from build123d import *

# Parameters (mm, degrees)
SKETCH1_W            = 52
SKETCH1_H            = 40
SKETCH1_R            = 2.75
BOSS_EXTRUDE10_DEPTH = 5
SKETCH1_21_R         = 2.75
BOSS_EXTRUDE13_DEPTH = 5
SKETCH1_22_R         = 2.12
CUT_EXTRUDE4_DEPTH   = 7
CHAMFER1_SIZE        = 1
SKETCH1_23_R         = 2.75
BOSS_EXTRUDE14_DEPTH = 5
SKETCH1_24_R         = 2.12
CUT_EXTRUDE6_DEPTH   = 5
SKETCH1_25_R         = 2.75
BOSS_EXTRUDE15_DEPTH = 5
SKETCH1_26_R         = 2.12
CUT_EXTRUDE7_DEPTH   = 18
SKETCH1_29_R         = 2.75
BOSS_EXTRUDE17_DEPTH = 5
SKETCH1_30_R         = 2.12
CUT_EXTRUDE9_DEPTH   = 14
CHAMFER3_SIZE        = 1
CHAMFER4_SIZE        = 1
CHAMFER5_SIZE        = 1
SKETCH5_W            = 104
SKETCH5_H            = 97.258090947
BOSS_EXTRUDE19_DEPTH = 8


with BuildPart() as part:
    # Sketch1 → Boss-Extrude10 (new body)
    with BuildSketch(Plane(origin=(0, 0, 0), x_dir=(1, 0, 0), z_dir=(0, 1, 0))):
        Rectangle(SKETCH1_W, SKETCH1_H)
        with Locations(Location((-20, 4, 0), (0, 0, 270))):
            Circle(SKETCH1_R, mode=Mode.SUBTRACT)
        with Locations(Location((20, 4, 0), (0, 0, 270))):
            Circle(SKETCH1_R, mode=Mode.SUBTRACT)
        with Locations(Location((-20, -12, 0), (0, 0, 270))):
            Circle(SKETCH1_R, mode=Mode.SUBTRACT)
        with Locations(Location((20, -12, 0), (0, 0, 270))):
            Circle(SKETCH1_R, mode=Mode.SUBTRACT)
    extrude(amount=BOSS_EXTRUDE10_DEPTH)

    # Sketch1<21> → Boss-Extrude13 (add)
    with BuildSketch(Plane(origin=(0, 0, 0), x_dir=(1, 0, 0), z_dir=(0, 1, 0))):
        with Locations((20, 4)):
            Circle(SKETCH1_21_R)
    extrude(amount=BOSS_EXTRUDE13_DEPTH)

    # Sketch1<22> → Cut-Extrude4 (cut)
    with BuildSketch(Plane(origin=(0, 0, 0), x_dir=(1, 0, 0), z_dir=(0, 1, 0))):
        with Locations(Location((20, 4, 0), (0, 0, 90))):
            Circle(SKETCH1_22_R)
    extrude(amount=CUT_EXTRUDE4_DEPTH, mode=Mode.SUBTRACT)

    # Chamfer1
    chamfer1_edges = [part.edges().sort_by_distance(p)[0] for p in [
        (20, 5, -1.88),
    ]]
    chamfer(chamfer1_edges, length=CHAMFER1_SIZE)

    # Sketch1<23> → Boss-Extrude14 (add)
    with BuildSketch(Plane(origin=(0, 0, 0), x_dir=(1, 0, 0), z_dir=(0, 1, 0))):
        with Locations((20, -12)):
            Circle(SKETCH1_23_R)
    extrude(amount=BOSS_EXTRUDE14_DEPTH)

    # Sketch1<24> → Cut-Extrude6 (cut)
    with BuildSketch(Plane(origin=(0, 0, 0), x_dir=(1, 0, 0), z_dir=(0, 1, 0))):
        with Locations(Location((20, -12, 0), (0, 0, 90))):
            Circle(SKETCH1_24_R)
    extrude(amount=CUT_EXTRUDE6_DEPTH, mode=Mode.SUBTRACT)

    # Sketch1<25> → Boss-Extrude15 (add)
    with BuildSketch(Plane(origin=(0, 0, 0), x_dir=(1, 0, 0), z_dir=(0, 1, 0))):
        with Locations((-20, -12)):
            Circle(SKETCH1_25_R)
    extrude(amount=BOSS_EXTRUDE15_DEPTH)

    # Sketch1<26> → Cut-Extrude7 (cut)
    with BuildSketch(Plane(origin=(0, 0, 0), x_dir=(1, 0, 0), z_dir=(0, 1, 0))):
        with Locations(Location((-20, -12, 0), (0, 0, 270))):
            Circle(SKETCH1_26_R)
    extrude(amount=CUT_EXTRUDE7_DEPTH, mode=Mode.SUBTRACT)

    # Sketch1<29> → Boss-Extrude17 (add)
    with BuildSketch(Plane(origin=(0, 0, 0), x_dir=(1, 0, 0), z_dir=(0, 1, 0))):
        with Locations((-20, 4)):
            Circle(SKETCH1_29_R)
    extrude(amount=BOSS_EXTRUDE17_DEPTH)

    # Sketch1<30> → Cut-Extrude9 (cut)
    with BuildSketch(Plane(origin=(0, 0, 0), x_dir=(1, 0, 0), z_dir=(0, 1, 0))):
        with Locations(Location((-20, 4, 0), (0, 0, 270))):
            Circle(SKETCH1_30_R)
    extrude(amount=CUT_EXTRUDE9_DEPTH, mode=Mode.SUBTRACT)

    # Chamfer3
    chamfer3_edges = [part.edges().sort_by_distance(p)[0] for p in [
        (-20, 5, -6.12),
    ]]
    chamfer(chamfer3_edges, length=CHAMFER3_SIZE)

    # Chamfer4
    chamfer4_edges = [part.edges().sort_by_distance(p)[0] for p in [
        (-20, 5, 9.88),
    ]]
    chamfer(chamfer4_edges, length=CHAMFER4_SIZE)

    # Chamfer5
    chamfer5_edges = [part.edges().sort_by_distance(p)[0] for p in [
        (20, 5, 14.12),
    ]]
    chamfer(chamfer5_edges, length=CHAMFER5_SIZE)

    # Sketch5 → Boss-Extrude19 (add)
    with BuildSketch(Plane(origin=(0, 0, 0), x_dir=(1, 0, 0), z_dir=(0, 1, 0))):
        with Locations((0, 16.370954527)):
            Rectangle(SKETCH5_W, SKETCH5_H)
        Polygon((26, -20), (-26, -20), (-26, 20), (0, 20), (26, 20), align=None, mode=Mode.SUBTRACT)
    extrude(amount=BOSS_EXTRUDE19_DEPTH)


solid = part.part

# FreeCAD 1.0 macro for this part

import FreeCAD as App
import Part
import Sketcher

V = App.Vector


def edges_at(feature, points):
    """Names of the edges that pass closest to the given points."""
    edges = feature.Shape.Edges
    near = lambda p: min(range(len(edges)), key=lambda i: edges[i].distToShape(Part.Vertex(*p))[0])
    return sorted({f"Edge{near(p) + 1}" for p in points})

doc = App.newDocument("Part")
body = doc.addObject("PartDesign::Body", "Body")

sketch1 = body.newObject("Sketcher::SketchObject", "Sketch")
sketch1.AttachmentSupport = (doc.getObject("XZ_Plane"), [""])
sketch1.MapMode = "FlatFace"
sketch1.addGeometry([
    Part.LineSegment(V(-26, -20, 0), V(-26, 20, 0)),
    Part.LineSegment(V(-26, 20, 0), V(26, 20, 0)),
    Part.LineSegment(V(26, 20, 0), V(26, -20, 0)),
    Part.LineSegment(V(26, -20, 0), V(-26, -20, 0)),
    Part.Circle(V(-20, 12, 0), V(0, 0, 1), 2.75),
    Part.Circle(V(20, 12, 0), V(0, 0, 1), 2.75),
    Part.Circle(V(-20, -4, 0), V(0, 0, 1), 2.75),
    Part.Circle(V(20, -4, 0), V(0, 0, 1), 2.75),
], False)
sketch1.addConstraint([
    Sketcher.Constraint("Coincident", 0, 2, 1, 1),
    Sketcher.Constraint("Coincident", 1, 2, 2, 1),
    Sketcher.Constraint("Coincident", 2, 2, 3, 1),
    Sketcher.Constraint("Coincident", 3, 2, 0, 1),
    Sketcher.Constraint("Vertical", 0),
    Sketcher.Constraint("Horizontal", 1),
    Sketcher.Constraint("Vertical", 2),
    Sketcher.Constraint("Horizontal", 3),
    Sketcher.Constraint("Equal", 4, 5),
    Sketcher.Constraint("Equal", 5, 6),
    Sketcher.Constraint("Equal", 6, 7),
    Sketcher.Constraint("Symmetric", 0, 2, 2, 2, -1, 1),
    Sketcher.Constraint("Symmetric", 4, 3, 5, 3, -2),
    Sketcher.Constraint("Symmetric", 6, 3, 7, 3, -2),
    Sketcher.Constraint("Vertical", 4, 3, 6, 3),
    Sketcher.Constraint("Diameter", 4, 5.5),
    Sketcher.Constraint("DistanceX", 1, 1, 1, 2, 52.0),
    Sketcher.Constraint("DistanceY", 0, 1, 0, 2, 40.0),
    Sketcher.Constraint("DistanceX", 4, 3, -1, 1, 20.0),
    Sketcher.Constraint("DistanceY", -1, 1, 4, 3, 12.0),
    Sketcher.Constraint("DistanceY", 6, 3, -1, 1, 4.0),
])
pad1 = body.newObject("PartDesign::Pad", "Pad")
pad1.Profile = sketch1
pad1.Length = 5
pad1.Reversed = True

sketch2 = body.newObject("Sketcher::SketchObject", "Sketch001")
sketch2.AttachmentSupport = (doc.getObject("XZ_Plane"), [""])
sketch2.MapMode = "FlatFace"
sketch2.addGeometry(Part.Circle(V(20, -4, 0), V(0, 0, 1), 2.75), False)
sketch2.addConstraint([
    Sketcher.Constraint("Diameter", 0, 5.5),
    Sketcher.Constraint("DistanceX", -1, 1, 0, 3, 20.0),
    Sketcher.Constraint("DistanceY", 0, 3, -1, 1, 4.0),
])
pad2 = body.newObject("PartDesign::Pad", "Pad001")
pad2.Profile = sketch2
pad2.Length = 5
pad2.Reversed = True

sketch3 = body.newObject("Sketcher::SketchObject", "Sketch002")
sketch3.AttachmentSupport = (doc.getObject("XZ_Plane"), [""])
sketch3.MapMode = "FlatFace"
sketch3.addGeometry(Part.Circle(V(20, -4, 0), V(0, 0, 1), 2.12), False)
sketch3.addConstraint([
    Sketcher.Constraint("Diameter", 0, 4.24),
    Sketcher.Constraint("DistanceX", -1, 1, 0, 3, 20.0),
    Sketcher.Constraint("DistanceY", 0, 3, -1, 1, 4.0),
])
pocket1 = body.newObject("PartDesign::Pocket", "Pocket")
pocket1.Profile = sketch3
pocket1.Length = 7
doc.recompute()

chamfer = body.newObject("PartDesign::Chamfer", "Chamfer")
chamfer.Base = (pocket1, edges_at(pocket1, [(20, 5, -1.88)]))
chamfer.Size = 1

sketch4 = body.newObject("Sketcher::SketchObject", "Sketch003")
sketch4.AttachmentSupport = (doc.getObject("XZ_Plane"), [""])
sketch4.MapMode = "FlatFace"
sketch4.addGeometry(Part.Circle(V(20, 12, 0), V(0, 0, 1), 2.75), False)
sketch4.addConstraint([
    Sketcher.Constraint("Diameter", 0, 5.5),
    Sketcher.Constraint("DistanceX", -1, 1, 0, 3, 20.0),
    Sketcher.Constraint("DistanceY", -1, 1, 0, 3, 12.0),
])
pad3 = body.newObject("PartDesign::Pad", "Pad002")
pad3.Profile = sketch4
pad3.Length = 5
pad3.Reversed = True

sketch5 = body.newObject("Sketcher::SketchObject", "Sketch004")
sketch5.AttachmentSupport = (doc.getObject("XZ_Plane"), [""])
sketch5.MapMode = "FlatFace"
sketch5.addGeometry(Part.Circle(V(20, 12, 0), V(0, 0, 1), 2.12), False)
sketch5.addConstraint([
    Sketcher.Constraint("Diameter", 0, 4.24),
    Sketcher.Constraint("DistanceX", -1, 1, 0, 3, 20.0),
    Sketcher.Constraint("DistanceY", -1, 1, 0, 3, 12.0),
])
pocket2 = body.newObject("PartDesign::Pocket", "Pocket001")
pocket2.Profile = sketch5
pocket2.Length = 5

sketch6 = body.newObject("Sketcher::SketchObject", "Sketch005")
sketch6.AttachmentSupport = (doc.getObject("XZ_Plane"), [""])
sketch6.MapMode = "FlatFace"
sketch6.addGeometry(Part.Circle(V(-20, 12, 0), V(0, 0, 1), 2.75), False)
sketch6.addConstraint([
    Sketcher.Constraint("Diameter", 0, 5.5),
    Sketcher.Constraint("DistanceX", 0, 3, -1, 1, 20.0),
    Sketcher.Constraint("DistanceY", -1, 1, 0, 3, 12.0),
])
pad4 = body.newObject("PartDesign::Pad", "Pad003")
pad4.Profile = sketch6
pad4.Length = 5
pad4.Reversed = True

sketch7 = body.newObject("Sketcher::SketchObject", "Sketch006")
sketch7.AttachmentSupport = (doc.getObject("XZ_Plane"), [""])
sketch7.MapMode = "FlatFace"
sketch7.addGeometry(Part.Circle(V(-20, 12, 0), V(0, 0, 1), 2.12), False)
sketch7.addConstraint([
    Sketcher.Constraint("Diameter", 0, 4.24),
    Sketcher.Constraint("DistanceX", 0, 3, -1, 1, 20.0),
    Sketcher.Constraint("DistanceY", -1, 1, 0, 3, 12.0),
])
pocket3 = body.newObject("PartDesign::Pocket", "Pocket002")
pocket3.Profile = sketch7
pocket3.Length = 18

sketch8 = body.newObject("Sketcher::SketchObject", "Sketch007")
sketch8.AttachmentSupport = (doc.getObject("XZ_Plane"), [""])
sketch8.MapMode = "FlatFace"
sketch8.addGeometry(Part.Circle(V(-20, -4, 0), V(0, 0, 1), 2.75), False)
sketch8.addConstraint([
    Sketcher.Constraint("Diameter", 0, 5.5),
    Sketcher.Constraint("DistanceX", 0, 3, -1, 1, 20.0),
    Sketcher.Constraint("DistanceY", 0, 3, -1, 1, 4.0),
])
pad5 = body.newObject("PartDesign::Pad", "Pad004")
pad5.Profile = sketch8
pad5.Length = 5
pad5.Reversed = True

sketch9 = body.newObject("Sketcher::SketchObject", "Sketch008")
sketch9.AttachmentSupport = (doc.getObject("XZ_Plane"), [""])
sketch9.MapMode = "FlatFace"
sketch9.addGeometry(Part.Circle(V(-20, -4, 0), V(0, 0, 1), 2.12), False)
sketch9.addConstraint([
    Sketcher.Constraint("Diameter", 0, 4.24),
    Sketcher.Constraint("DistanceX", 0, 3, -1, 1, 20.0),
    Sketcher.Constraint("DistanceY", 0, 3, -1, 1, 4.0),
])
pocket4 = body.newObject("PartDesign::Pocket", "Pocket003")
pocket4.Profile = sketch9
pocket4.Length = 14
doc.recompute()

chamfer2 = body.newObject("PartDesign::Chamfer", "Chamfer001")
chamfer2.Base = (pocket4, edges_at(pocket4, [(-20, 5, -6.12)]))
chamfer2.Size = 1
doc.recompute()

chamfer3 = body.newObject("PartDesign::Chamfer", "Chamfer002")
chamfer3.Base = (chamfer2, edges_at(chamfer2, [(-20, 5, 9.88)]))
chamfer3.Size = 1
doc.recompute()

chamfer4 = body.newObject("PartDesign::Chamfer", "Chamfer003")
chamfer4.Base = (chamfer3, edges_at(chamfer3, [(20, 5, 14.12)]))
chamfer4.Size = 1

sketch10 = body.newObject("Sketcher::SketchObject", "Sketch009")
sketch10.AttachmentSupport = (doc.getObject("XZ_Plane"), [""])
sketch10.MapMode = "FlatFace"
sketch10.addGeometry([
    Part.LineSegment(V(-52, -65, 0), V(-52, 32.258091, 0)),
    Part.LineSegment(V(-52, 32.258091, 0), V(52, 32.258091, 0)),
    Part.LineSegment(V(52, 32.258091, 0), V(52, -65, 0)),
    Part.LineSegment(V(52, -65, 0), V(-52, -65, 0)),
    Part.LineSegment(V(26, -20, 0), V(26, 20, 0)),
    Part.LineSegment(V(26, 20, 0), V(-26, 20, 0)),
    Part.LineSegment(V(-26, 20, 0), V(-26, -20, 0)),
    Part.LineSegment(V(-26, -20, 0), V(26, -20, 0)),
], False)
sketch10.addConstraint([
    Sketcher.Constraint("Coincident", 0, 2, 1, 1),
    Sketcher.Constraint("Coincident", 1, 2, 2, 1),
    Sketcher.Constraint("Coincident", 2, 2, 3, 1),
    Sketcher.Constraint("Coincident", 3, 2, 0, 1),
    Sketcher.Constraint("Coincident", 4, 2, 5, 1),
    Sketcher.Constraint("Coincident", 5, 2, 6, 1),
    Sketcher.Constraint("Coincident", 6, 2, 7, 1),
    Sketcher.Constraint("Coincident", 7, 2, 4, 1),
    Sketcher.Constraint("Vertical", 0),
    Sketcher.Constraint("Horizontal", 1),
    Sketcher.Constraint("Vertical", 2),
    Sketcher.Constraint("Horizontal", 3),
    Sketcher.Constraint("Vertical", 4),
    Sketcher.Constraint("Horizontal", 5),
    Sketcher.Constraint("Vertical", 6),
    Sketcher.Constraint("Horizontal", 7),
    Sketcher.Constraint("Symmetric", 4, 2, 6, 2, -1, 1),
    Sketcher.Constraint("DistanceX", 1, 1, 1, 2, 104.0),
    Sketcher.Constraint("DistanceX", 5, 2, 5, 1, 52.0),
    Sketcher.Constraint("DistanceY", 4, 1, 4, 2, 40.0),
    Sketcher.Constraint("DistanceX", 0, 2, -1, 1, 52.0),
    Sketcher.Constraint("DistanceY", 2, 2, -1, 1, 65.0),
    Sketcher.Constraint("DistanceY", 0, 1, 0, 2, 97.258091),
])
pad6 = body.newObject("PartDesign::Pad", "Pad005")
pad6.Profile = sketch10
pad6.Length = 8
pad6.Reversed = True

doc.recompute()
